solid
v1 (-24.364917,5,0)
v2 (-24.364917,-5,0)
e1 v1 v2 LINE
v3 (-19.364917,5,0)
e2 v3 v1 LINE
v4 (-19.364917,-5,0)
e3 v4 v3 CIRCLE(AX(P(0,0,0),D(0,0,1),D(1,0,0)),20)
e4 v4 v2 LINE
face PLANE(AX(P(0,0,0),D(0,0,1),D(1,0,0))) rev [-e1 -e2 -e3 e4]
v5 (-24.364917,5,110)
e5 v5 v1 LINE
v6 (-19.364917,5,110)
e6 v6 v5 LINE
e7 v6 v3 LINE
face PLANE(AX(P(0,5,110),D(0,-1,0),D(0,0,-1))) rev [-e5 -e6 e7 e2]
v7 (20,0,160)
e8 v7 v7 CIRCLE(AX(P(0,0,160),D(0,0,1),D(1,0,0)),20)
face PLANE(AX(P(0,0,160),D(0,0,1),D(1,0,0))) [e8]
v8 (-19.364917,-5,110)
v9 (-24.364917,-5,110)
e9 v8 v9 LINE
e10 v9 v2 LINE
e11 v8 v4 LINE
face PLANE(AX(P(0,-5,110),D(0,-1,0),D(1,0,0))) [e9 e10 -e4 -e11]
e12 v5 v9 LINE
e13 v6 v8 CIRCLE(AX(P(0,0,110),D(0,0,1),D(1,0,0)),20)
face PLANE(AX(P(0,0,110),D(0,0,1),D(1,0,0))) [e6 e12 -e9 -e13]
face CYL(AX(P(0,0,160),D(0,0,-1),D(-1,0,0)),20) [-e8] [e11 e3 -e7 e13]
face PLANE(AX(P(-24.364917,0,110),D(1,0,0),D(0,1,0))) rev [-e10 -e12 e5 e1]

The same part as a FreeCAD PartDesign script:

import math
import FreeCAD as App
import Part
import Sketcher
from FreeCAD import Vector
Q = App.Units.Quantity

doc = App.newDocument("Part")
body = doc.addObject("PartDesign::Body", "Body")

# Sketch on XY plane
sketch1 = body.newObject("Sketcher::SketchObject", "Sketch")
sketch1.AttachmentSupport = (doc.getObject("XY_Plane"), [""])
sketch1.MapMode = "FlatFace"
sketch1.addGeometry(Part.ArcOfCircle(Part.Circle(Vector(0, 0, 0), Vector(0, 0, 1), 20), math.radians(165.52), math.radians(180)), False)
sketch1.addGeometry(Part.ArcOfCircle(Part.Circle(Vector(0, 0, 0), Vector(0, 0, 1), 20), math.radians(-180), math.radians(-165.52)), False)
sketch1.addGeometry(Part.ArcOfCircle(Part.Circle(Vector(0, 0, 0), Vector(0, 0, 1), 20), math.radians(-166), math.radians(0)), False)
sketch1.addGeometry(Part.ArcOfCircle(Part.Circle(Vector(0, 0, 0), Vector(0, 0, 1), 20), math.radians(0), math.radians(166)), False)
sketch1.addConstraint(Sketcher.Constraint("Tangent", 0, 2, 1, 1))
sketch1.addConstraint(Sketcher.Constraint("Tangent", 1, 2, 2, 1))
sketch1.addConstraint(Sketcher.Constraint("Tangent", 2, 2, 3, 1))
sketch1.addConstraint(Sketcher.Constraint("Tangent", 3, 2, 0, 1))
sketch1.addConstraint(Sketcher.Constraint("Coincident", 0, 3, -1, 1))
sketch1.addConstraint(Sketcher.Constraint("Equal", 0, 1))
sketch1.addConstraint(Sketcher.Constraint("PointOnObject", 0, 2, -1))
sketch1.addConstraint(Sketcher.Constraint("PointOnObject", 2, 2, -1))
sketch1.addConstraint(Sketcher.Constraint("Vertical", 1, 2, 3, 2))
sketch1.addConstraint(Sketcher.Constraint("Radius", 0, Q("20 mm")))
sketch1.addConstraint(Sketcher.Constraint("DistanceY", 1, 2, -1, 1, Q("5 mm")))
pad1 = body.newObject("PartDesign::Pad", "Pad")
pad1.Profile = sketch1
pad1.Length = 160

# Sketch on XY plane
sketch2 = body.newObject("Sketcher::SketchObject", "Sketch001")
sketch2.AttachmentSupport = (doc.getObject("XY_Plane"), [""])
sketch2.MapMode = "FlatFace"
sketch2.addGeometry(Part.LineSegment(Vector(-24, 5, 0), Vector(-24, -5, 0)), False)
sketch2.addGeometry(Part.LineSegment(Vector(-24, -5, 0), Vector(-19, -5, 0)), False)
sketch2.addGeometry(Part.ArcOfCircle(Part.Circle(Vector(0, 0, 0), Vector(0, 0, 1), 20), math.radians(-180), math.radians(-165.52)), False)
sketch2.addGeometry(Part.ArcOfCircle(Part.Circle(Vector(0, 0, 0), Vector(0, 0, 1), 20), math.radians(165.52), math.radians(180)), False)
sketch2.addGeometry(Part.LineSegment(Vector(-19, 5, 0), Vector(-24, 5, 0)), False)
sketch2.addConstraint(Sketcher.Constraint("Coincident", 0, 2, 1, 1))
sketch2.addConstraint(Sketcher.Constraint("Coincident", 1, 2, 2, 2))
sketch2.addConstraint(Sketcher.Constraint("Tangent", 2, 1, 3, 2))
sketch2.addConstraint(Sketcher.Constraint("Coincident", 3, 1, 4, 1))
sketch2.addConstraint(Sketcher.Constraint("Coincident", 4, 2, 0, 1))
sketch2.addConstraint(Sketcher.Constraint("Vertical", 0))
sketch2.addConstraint(Sketcher.Constraint("Horizontal", 1))
sketch2.addConstraint(Sketcher.Constraint("Horizontal", 4))
sketch2.addConstraint(Sketcher.Constraint("Coincident", 2, 3, -1, 1))
sketch2.addConstraint(Sketcher.Constraint("Equal", 2, 3))
sketch2.addConstraint(Sketcher.Constraint("PointOnObject", 2, 1, -1))
sketch2.addConstraint(Sketcher.Constraint("Vertical", 1, 2, 3, 1))
sketch2.addConstraint(Sketcher.Constraint("Radius", 2, Q("20 mm")))
sketch2.addConstraint(Sketcher.Constraint("DistanceX", 1, 1, 1, 2, Q("5 mm")))
sketch2.addConstraint(Sketcher.Constraint("DistanceY", 0, 2, 0, 1, Q("10 mm")))
pad2 = body.newObject("PartDesign::Pad", "Pad001")
pad2.Profile = sketch2
pad2.Length = 110

doc.recompute()
